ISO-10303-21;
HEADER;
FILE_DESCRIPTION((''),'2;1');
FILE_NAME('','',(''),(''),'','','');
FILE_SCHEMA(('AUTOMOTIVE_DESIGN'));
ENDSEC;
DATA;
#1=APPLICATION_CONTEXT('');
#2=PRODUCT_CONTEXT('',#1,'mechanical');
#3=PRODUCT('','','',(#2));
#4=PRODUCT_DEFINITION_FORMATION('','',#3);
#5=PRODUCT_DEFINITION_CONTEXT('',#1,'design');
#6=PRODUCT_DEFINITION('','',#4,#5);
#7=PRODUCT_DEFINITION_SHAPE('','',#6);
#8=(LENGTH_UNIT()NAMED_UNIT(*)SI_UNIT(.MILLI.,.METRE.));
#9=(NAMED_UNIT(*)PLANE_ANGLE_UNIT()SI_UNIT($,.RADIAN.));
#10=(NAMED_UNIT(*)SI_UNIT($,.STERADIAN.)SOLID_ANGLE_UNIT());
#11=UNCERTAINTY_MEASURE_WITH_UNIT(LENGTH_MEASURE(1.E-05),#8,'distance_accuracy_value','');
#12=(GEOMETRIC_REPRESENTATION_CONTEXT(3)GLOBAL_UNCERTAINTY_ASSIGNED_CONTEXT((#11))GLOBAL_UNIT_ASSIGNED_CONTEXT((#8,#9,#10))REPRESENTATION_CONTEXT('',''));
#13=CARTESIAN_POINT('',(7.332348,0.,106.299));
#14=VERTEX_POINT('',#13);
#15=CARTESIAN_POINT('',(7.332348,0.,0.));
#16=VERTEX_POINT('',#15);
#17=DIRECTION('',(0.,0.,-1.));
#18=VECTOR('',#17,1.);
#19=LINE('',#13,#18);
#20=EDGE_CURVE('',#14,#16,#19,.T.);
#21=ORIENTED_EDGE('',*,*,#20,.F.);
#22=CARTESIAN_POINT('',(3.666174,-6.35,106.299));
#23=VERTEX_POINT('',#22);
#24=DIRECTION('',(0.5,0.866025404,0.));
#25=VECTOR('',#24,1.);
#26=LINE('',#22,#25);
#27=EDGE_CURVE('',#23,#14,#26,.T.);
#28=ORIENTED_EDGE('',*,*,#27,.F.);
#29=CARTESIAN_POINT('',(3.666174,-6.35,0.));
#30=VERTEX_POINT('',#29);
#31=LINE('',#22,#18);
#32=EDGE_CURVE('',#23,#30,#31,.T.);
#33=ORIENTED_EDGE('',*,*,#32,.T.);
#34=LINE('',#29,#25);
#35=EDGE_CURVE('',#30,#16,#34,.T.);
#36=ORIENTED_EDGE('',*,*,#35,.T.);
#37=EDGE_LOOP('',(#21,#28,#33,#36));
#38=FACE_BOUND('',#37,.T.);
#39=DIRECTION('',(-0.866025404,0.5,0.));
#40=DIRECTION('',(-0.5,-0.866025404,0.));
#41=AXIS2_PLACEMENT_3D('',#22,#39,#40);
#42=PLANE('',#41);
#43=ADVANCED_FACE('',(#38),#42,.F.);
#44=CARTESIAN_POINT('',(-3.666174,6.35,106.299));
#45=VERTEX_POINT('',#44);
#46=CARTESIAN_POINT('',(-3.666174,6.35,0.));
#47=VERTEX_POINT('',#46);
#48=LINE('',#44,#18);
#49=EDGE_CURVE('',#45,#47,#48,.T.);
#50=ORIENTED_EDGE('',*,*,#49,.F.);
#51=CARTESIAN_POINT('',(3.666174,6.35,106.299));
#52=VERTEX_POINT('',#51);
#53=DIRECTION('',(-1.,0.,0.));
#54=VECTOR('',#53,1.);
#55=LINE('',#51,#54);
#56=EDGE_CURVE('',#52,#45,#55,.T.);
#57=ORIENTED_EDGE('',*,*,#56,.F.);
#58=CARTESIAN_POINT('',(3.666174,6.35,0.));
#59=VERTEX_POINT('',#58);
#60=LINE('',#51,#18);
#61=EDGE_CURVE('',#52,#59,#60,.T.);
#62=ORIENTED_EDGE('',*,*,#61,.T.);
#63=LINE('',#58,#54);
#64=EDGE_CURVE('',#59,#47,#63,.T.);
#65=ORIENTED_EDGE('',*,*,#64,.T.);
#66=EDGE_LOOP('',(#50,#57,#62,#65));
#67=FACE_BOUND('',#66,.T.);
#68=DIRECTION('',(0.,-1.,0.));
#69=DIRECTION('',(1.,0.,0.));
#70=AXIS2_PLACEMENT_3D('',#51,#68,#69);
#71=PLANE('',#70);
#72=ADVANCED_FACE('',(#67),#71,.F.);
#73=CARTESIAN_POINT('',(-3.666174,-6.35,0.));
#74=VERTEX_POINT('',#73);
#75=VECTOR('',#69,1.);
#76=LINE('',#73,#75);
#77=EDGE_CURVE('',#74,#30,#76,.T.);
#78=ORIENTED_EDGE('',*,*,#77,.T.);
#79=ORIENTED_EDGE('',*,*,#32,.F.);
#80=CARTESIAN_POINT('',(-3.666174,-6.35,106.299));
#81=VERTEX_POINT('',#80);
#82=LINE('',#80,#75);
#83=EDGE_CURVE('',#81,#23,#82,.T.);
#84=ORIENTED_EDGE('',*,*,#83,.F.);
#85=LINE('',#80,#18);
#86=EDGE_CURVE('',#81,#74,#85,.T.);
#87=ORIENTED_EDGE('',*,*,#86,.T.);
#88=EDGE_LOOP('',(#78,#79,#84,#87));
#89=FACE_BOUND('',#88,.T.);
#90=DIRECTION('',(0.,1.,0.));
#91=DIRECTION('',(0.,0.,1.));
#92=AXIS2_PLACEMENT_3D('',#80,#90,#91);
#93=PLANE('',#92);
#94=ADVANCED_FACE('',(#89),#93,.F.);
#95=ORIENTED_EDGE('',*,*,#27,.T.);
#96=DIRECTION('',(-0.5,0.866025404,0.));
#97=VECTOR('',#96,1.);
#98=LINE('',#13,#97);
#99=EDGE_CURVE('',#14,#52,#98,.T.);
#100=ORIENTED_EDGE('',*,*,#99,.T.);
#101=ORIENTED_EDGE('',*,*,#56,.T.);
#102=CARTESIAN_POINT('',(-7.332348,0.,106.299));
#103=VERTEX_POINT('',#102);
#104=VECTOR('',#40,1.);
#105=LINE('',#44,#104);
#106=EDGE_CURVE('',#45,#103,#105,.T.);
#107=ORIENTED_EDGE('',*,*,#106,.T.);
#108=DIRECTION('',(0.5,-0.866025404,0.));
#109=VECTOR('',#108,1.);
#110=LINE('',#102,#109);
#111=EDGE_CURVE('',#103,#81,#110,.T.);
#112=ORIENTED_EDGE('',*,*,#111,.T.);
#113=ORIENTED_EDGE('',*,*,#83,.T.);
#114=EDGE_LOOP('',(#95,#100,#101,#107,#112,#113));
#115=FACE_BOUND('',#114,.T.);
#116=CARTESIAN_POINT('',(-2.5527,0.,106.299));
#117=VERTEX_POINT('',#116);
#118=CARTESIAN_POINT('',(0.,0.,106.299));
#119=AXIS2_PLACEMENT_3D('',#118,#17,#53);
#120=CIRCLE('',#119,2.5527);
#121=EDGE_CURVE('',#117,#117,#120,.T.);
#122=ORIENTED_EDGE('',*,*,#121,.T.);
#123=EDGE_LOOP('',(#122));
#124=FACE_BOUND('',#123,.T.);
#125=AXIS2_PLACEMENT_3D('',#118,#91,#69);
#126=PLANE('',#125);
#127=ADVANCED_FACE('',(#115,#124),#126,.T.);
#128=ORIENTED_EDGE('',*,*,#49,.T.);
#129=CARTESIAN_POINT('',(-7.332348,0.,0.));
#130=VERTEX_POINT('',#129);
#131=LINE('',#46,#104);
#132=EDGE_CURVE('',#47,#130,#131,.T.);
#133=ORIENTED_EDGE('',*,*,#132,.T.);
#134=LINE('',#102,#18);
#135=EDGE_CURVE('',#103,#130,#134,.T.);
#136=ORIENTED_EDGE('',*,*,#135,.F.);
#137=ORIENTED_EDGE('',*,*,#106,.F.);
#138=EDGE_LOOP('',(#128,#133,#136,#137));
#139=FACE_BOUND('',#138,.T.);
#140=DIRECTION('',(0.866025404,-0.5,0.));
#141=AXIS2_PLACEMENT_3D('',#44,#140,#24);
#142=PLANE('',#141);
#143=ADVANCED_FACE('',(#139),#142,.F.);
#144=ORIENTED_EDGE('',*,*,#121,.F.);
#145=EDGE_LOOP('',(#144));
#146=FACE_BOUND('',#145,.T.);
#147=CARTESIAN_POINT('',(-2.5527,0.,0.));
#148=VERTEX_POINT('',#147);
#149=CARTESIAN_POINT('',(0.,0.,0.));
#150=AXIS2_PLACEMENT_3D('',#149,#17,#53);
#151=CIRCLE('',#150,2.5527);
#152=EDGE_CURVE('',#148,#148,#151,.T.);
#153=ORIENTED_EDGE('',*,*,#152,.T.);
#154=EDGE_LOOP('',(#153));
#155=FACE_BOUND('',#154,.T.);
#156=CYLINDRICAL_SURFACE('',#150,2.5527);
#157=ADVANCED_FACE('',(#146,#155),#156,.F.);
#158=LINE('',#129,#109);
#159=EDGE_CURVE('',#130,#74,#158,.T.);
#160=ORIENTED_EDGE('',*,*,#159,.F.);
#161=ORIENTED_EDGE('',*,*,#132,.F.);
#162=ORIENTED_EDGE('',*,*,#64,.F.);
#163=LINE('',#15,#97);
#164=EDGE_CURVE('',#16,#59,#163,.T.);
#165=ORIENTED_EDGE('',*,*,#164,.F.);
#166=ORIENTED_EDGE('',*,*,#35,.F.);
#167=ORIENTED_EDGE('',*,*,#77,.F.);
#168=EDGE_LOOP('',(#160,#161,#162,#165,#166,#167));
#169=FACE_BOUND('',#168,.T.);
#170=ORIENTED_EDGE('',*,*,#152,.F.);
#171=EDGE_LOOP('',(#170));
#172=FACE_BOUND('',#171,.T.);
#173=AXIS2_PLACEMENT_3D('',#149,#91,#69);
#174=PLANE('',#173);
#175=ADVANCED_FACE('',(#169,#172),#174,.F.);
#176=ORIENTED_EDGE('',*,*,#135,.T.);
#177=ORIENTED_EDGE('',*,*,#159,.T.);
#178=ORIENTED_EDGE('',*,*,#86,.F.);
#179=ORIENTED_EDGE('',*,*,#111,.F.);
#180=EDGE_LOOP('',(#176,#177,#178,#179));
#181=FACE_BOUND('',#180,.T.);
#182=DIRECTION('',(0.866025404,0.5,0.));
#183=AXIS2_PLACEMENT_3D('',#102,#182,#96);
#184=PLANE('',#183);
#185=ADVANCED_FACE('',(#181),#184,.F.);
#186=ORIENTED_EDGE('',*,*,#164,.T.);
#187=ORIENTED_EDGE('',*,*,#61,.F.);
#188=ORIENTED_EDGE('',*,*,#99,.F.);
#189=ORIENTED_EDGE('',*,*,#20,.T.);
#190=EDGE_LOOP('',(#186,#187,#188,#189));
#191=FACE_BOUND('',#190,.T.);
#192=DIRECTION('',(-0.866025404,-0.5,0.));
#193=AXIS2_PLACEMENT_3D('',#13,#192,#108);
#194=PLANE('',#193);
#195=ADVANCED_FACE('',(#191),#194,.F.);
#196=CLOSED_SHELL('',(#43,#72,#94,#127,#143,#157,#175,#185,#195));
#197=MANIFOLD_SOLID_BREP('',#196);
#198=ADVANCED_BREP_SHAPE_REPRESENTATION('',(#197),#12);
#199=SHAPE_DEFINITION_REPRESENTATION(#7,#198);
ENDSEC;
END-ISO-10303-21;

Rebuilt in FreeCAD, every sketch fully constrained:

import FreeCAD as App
import Part
import Sketcher

V = App.Vector
Q = App.Units.Quantity


def add_polygon(sketch, points):
    """Adds a closed chain of lines whose ends are joined by coincident constraints."""
    first, n = sketch.GeometryCount, len(points)
    for a, b in zip(points, points[1:] + points[:1]):
        sketch.addGeometry(Part.LineSegment(App.Vector(*a, 0), App.Vector(*b, 0)), False)
    for i in range(n):
        sketch.addConstraint(Sketcher.Constraint("Coincident", first + i, 2, first + (i + 1) % n, 1))

doc = App.newDocument("Part")
params = doc.addObject("Spreadsheet::Sheet", "Params")
for row, (alias, value) in enumerate([
    ("pad1_length", "4.185 in"),
    ("sketch2_diameter", "0.201 in"),
    ("hole_diameter", "0.201 in"),
], start=1):
    params.set(f"A{row}", alias)
    params.set(f"B{row}", "=" + value)
    params.setAlias(f"B{row}", alias)

body = doc.addObject("PartDesign::Body", "Body")

sketch1 = body.newObject("Sketcher::SketchObject", "Sketch")
sketch1.AttachmentSupport = (doc.getObject("XY_Plane"), [""])
sketch1.MapMode = "FlatFace"
add_polygon(sketch1, [(4, -6), (7, 0), (4, 6), (-4, 6), (-7, 0), (-4, -6)])
sketch1.addConstraint(Sketcher.Constraint("Horizontal", 2))
sketch1.addConstraint(Sketcher.Constraint("Horizontal", 5))
sketch1.addConstraint(Sketcher.Constraint("Symmetric", 0, 2, 3, 2, -1, 1))
sketch1.addConstraint(Sketcher.Constraint("Symmetric", 1, 2, 4, 2, -1, 1))
sketch1.addConstraint(Sketcher.Constraint("PointOnObject", 0, 2, -1))
sketch1.addConstraint(Sketcher.Constraint("Parallel", 0, 3))
sketch1.addConstraint(Sketcher.Constraint("Vertical", 2, 2, 4, 2))
sketch1.addConstraint(Sketcher.Constraint("Angle", 0, Q("60 deg")))
sketch1.addConstraint(Sketcher.Constraint("DistanceY", 4, 2, 2, 2, Q("0.5 in")))
sketch1.addConstraint(Sketcher.Constraint("DistanceX", 2, 2, 2, 1, 7.332348))
pad1 = body.newObject("PartDesign::Pad", "Pad")
pad1.Profile = sketch1
pad1.setExpression("Length", "Params.pad1_length")

sketch2 = body.newObject("Sketcher::SketchObject", "Sketch001")
sketch2.AttachmentSupport = (doc.getObject("XY_Plane"), [""])
sketch2.MapMode = "FlatFace"
sketch2.addGeometry(Part.Circle(V(0, 0, 0), V(0, 0, 1), 2.6), False)
sketch2.addConstraint(Sketcher.Constraint("Coincident", 0, 3, -1, 1))
sketch2.addConstraint(Sketcher.Constraint("Diameter", 0, Q("0.201 in")))
sketch2.setExpression("Constraints[1]", "Params.sketch2_diameter")
doc.recompute()
hole = body.newObject("PartDesign::Hole", "Hole")
hole.Profile = sketch2
hole.ThreadType = "None"
hole.setExpression("Diameter", "Params.hole_diameter")
hole.DepthType = "ThroughAll"
hole.Reversed = True

doc.recompute()
